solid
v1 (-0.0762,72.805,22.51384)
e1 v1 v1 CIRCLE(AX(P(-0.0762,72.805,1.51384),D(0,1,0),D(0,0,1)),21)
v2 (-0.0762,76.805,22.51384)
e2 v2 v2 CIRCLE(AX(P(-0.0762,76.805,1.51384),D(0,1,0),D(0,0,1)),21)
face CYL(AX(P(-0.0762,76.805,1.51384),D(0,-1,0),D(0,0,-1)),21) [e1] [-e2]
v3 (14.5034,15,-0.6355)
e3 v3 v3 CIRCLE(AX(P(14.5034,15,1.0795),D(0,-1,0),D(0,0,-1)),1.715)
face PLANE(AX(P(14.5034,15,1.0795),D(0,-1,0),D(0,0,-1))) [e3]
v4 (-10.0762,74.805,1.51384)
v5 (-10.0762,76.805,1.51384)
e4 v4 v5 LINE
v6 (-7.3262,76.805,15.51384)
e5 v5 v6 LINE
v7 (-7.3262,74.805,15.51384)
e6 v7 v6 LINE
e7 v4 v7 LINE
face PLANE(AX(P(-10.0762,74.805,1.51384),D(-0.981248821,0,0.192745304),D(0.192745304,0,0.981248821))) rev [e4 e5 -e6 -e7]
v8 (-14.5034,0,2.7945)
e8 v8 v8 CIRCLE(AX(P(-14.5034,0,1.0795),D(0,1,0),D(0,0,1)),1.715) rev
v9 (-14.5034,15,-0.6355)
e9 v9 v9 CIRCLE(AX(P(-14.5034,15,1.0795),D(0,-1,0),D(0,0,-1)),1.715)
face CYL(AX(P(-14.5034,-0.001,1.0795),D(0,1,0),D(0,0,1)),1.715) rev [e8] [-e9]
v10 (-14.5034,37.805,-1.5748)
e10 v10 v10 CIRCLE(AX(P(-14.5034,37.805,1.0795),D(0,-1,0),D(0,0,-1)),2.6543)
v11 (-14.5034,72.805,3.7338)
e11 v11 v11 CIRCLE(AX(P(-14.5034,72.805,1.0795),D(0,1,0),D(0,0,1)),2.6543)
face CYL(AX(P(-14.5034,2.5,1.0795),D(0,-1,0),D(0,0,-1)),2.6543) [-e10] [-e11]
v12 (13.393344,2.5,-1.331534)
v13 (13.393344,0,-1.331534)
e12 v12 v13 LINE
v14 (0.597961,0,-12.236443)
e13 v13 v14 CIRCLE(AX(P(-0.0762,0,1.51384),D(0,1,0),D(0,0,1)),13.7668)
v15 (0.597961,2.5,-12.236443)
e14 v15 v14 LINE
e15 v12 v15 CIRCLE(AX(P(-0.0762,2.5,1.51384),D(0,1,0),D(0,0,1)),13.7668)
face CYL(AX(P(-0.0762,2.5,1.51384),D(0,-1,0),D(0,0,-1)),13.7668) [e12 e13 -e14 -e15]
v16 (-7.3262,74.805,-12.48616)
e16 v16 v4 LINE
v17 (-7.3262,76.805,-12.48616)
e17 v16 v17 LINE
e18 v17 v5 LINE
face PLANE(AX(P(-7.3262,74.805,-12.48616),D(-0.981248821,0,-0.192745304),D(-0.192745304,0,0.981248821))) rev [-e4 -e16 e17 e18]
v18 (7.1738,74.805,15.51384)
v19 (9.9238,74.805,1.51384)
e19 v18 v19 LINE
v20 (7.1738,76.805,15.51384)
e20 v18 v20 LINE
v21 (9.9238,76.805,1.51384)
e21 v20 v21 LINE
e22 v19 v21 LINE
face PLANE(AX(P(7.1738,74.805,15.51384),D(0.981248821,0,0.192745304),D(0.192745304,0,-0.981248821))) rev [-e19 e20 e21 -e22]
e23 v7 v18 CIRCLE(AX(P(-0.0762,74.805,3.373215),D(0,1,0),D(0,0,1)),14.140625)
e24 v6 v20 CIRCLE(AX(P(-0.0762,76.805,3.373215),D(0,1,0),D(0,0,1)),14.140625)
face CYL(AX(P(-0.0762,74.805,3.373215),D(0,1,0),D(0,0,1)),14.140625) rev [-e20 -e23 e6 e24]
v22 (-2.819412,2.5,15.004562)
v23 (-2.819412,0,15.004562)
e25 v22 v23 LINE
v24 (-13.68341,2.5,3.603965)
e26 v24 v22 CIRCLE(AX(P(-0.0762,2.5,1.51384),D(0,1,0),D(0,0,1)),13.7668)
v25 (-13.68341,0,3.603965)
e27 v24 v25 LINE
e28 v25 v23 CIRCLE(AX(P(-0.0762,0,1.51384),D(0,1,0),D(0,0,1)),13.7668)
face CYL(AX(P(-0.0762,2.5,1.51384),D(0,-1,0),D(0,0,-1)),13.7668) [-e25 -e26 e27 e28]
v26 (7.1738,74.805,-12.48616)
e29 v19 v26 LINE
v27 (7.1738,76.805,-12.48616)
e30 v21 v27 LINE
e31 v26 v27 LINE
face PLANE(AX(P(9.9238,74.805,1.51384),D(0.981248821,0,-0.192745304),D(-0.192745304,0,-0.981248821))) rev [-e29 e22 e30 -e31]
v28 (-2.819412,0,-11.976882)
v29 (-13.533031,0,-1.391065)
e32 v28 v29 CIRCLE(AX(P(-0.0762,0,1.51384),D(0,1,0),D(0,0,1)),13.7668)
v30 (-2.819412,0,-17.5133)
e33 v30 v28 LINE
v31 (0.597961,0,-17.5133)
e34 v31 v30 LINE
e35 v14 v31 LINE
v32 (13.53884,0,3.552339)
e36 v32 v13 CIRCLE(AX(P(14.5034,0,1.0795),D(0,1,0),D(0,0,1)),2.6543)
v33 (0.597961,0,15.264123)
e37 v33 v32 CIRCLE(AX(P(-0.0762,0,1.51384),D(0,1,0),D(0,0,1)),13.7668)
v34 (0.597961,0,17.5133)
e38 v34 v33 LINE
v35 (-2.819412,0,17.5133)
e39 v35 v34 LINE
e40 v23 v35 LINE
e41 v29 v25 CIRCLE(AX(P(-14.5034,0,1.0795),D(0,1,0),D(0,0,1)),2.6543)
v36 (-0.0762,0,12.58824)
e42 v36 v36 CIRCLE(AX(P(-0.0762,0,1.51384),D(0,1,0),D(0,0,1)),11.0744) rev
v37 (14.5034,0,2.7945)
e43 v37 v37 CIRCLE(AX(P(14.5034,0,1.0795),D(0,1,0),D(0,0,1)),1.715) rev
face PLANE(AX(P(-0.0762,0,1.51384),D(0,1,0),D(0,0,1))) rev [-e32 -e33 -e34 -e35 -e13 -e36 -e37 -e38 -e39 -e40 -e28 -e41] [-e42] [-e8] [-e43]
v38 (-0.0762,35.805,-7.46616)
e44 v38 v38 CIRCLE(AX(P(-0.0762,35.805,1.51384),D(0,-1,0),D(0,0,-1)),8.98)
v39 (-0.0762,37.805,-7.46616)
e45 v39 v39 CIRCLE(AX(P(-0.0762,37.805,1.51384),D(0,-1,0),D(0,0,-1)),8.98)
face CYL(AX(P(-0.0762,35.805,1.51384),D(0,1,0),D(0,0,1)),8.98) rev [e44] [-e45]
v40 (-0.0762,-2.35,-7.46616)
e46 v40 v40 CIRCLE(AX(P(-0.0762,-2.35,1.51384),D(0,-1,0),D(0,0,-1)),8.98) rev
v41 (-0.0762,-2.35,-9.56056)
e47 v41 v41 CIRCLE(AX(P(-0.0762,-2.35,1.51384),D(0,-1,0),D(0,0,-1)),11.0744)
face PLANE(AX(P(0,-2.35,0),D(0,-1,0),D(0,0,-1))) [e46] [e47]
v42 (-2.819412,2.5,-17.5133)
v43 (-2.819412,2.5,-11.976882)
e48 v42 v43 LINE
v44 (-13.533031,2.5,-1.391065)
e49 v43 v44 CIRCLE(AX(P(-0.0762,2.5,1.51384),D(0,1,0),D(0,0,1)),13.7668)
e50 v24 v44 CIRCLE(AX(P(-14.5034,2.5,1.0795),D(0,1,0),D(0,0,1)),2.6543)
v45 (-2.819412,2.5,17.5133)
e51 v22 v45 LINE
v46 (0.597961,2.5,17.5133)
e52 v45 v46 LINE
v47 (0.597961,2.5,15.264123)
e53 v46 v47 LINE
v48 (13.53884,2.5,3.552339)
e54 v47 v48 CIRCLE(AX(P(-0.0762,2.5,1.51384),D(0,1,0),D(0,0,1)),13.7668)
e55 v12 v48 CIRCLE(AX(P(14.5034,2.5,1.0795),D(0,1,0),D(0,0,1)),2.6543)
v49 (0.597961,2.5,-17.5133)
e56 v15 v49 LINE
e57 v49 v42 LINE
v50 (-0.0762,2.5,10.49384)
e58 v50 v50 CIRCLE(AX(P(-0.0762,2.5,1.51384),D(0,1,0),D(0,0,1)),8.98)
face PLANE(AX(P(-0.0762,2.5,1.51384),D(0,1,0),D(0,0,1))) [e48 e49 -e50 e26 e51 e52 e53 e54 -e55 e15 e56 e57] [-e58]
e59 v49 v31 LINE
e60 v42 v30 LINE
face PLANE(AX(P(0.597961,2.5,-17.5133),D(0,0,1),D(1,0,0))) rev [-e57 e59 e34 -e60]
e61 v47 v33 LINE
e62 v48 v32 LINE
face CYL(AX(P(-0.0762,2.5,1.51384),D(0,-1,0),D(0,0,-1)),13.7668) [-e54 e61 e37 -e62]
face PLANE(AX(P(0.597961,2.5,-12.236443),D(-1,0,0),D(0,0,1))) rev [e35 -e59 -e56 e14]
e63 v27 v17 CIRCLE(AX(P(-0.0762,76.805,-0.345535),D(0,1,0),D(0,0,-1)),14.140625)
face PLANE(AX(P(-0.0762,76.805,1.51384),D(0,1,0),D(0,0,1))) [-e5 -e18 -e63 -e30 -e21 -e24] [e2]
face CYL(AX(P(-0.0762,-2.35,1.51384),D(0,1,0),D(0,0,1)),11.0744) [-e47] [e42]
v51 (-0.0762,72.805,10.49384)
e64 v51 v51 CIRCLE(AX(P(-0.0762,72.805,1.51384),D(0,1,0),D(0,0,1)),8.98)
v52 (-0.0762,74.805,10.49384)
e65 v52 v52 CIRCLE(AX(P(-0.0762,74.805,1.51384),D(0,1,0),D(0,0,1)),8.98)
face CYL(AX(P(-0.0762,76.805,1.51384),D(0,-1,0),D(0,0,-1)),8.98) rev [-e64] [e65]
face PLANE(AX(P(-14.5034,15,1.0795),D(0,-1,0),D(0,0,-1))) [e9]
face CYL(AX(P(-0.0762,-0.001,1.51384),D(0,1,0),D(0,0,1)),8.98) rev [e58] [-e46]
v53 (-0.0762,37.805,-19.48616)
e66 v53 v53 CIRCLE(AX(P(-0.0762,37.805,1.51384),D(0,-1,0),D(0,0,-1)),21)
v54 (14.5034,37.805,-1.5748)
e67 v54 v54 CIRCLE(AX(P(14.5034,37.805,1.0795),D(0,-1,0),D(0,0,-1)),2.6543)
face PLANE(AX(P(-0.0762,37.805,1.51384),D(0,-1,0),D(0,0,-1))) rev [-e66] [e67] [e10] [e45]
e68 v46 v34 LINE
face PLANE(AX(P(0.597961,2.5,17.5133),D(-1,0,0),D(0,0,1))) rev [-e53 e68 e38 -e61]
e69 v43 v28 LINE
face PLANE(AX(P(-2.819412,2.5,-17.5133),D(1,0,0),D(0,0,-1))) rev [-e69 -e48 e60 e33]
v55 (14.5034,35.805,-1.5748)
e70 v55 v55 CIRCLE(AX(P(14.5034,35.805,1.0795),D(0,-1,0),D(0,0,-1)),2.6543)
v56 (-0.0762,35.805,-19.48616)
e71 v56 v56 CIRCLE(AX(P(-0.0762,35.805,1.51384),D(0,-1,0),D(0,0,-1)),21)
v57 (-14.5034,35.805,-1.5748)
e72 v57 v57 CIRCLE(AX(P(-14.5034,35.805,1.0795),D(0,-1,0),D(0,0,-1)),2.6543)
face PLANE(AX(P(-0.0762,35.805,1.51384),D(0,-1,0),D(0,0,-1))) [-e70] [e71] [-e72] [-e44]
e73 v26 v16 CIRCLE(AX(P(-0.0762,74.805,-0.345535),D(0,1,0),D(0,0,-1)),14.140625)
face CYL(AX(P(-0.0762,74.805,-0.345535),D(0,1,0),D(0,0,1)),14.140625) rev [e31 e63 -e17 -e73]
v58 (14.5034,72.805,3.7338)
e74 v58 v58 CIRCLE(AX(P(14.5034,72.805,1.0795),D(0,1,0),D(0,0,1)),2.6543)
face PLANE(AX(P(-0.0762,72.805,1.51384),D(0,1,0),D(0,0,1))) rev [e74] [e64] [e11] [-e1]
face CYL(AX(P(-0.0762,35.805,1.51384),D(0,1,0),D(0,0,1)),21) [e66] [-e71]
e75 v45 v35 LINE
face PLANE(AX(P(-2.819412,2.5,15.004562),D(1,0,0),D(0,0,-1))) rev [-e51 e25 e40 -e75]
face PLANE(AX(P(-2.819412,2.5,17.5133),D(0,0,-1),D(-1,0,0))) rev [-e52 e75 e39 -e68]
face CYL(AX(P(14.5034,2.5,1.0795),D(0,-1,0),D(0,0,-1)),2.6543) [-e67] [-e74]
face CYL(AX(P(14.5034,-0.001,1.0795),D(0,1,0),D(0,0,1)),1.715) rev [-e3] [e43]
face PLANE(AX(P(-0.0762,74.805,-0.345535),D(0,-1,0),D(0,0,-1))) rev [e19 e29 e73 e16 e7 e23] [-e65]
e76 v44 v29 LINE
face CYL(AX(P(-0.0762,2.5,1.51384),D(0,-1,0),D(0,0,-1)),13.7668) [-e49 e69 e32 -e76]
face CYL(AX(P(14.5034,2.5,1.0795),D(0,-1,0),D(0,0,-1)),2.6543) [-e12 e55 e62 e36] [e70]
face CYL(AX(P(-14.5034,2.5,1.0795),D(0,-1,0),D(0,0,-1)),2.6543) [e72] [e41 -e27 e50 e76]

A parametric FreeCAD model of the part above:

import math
import FreeCAD as App
import Part
import Sketcher

doc = App.newDocument("Part")
body = doc.addObject("PartDesign::Body", "Body")

# Sketch on XZ plane
sketch1 = doc.addObject("Sketcher::SketchObject", "Sketch")
body.addObject(sketch1)
sketch1.AttachmentSupport = (doc.XZ_Plane, [""])
sketch1.MapMode = "FlatFace"
sketch1.addGeometry([
    Part.LineSegment(App.Vector(0.597961, -12.236443, 0), App.Vector(0.597961, -17.5133, 0)),  # 0
    Part.LineSegment(App.Vector(0.597961, -17.5133, 0), App.Vector(-2.819412, -17.5133, 0)),  # 1
    Part.LineSegment(App.Vector(-2.819412, -17.5133, 0), App.Vector(-2.819412, -11.976882, 0)),  # 2
    Part.ArcOfCircle(Part.Circle(App.Vector(-0.0762, 1.51384, 0), App.Vector(0, 0, 1), 13.7668), math.radians(-167.818568), math.radians(-101.493855)),  # 3
    Part.ArcOfCircle(Part.Circle(App.Vector(-14.5034, 1.0795, 0), App.Vector(0, 0, 1), 2.6543), math.radians(72.005302), math.radians(291.443507)),  # 4
    Part.ArcOfCircle(Part.Circle(App.Vector(-0.0762, 1.51384, 0), App.Vector(0, 0, 1), 13.7668), math.radians(101.493855), math.radians(171.267378)),  # 5
    Part.LineSegment(App.Vector(-2.819412, 15.004562, 0), App.Vector(-2.819412, 17.5133, 0)),  # 6
    Part.LineSegment(App.Vector(-2.819412, 17.5133, 0), App.Vector(0.597961, 17.5133, 0)),  # 7
    Part.LineSegment(App.Vector(0.597961, 17.5133, 0), App.Vector(0.597961, 15.264123, 0)),  # 8
    Part.ArcOfCircle(Part.Circle(App.Vector(-0.0762, 1.51384, 0), App.Vector(0, 0, 1), 13.7668), math.radians(8.515302), math.radians(87.1931)),  # 9
    Part.ArcOfCircle(Part.Circle(App.Vector(14.5034, 1.0795, 0), App.Vector(0, 0, 1), 2.6543), math.radians(-114.721646), math.radians(111.308865)),  # 10
    Part.ArcOfCircle(Part.Circle(App.Vector(-0.0762, 1.51384, 0), App.Vector(0, 0, 1), 13.7668), math.radians(-87.1931), math.radians(-11.928083)),  # 11
], False)
sketch1.addConstraint([
    Sketcher.Constraint("Coincident", 0, 2, 1, 1),
    Sketcher.Constraint("Coincident", 1, 2, 2, 1),
    Sketcher.Constraint("Coincident", 2, 2, 3, 2),
    Sketcher.Constraint("Coincident", 3, 1, 4, 2),
    Sketcher.Constraint("Coincident", 4, 1, 5, 2),
    Sketcher.Constraint("Coincident", 5, 1, 6, 1),
    Sketcher.Constraint("Coincident", 6, 2, 7, 1),
    Sketcher.Constraint("Coincident", 7, 2, 8, 1),
    Sketcher.Constraint("Coincident", 8, 2, 9, 2),
    Sketcher.Constraint("Coincident", 9, 1, 10, 2),
    Sketcher.Constraint("Coincident", 10, 1, 11, 2),
    Sketcher.Constraint("Coincident", 11, 1, 0, 1),
    Sketcher.Constraint("Vertical", 0),
    Sketcher.Constraint("Horizontal", 1),
    Sketcher.Constraint("Vertical", 2),
    Sketcher.Constraint("Vertical", 6),
    Sketcher.Constraint("Horizontal", 7),
    Sketcher.Constraint("Vertical", 8),
    Sketcher.Constraint("Coincident", 5, 3, 3, 3),
    Sketcher.Constraint("Coincident", 9, 3, 3, 3),
    Sketcher.Constraint("Coincident", 11, 3, 3, 3),
    Sketcher.Constraint("Equal", 3, 5),
    Sketcher.Constraint("Equal", 5, 9),
    Sketcher.Constraint("Equal", 4, 10),
    Sketcher.Constraint("Equal", 9, 11),
    Sketcher.Constraint("Symmetric", 4, 3, 10, 3, -2),
    Sketcher.Constraint("Symmetric", 1, 2, 6, 2, -1),
    Sketcher.Constraint("Vertical", 0, 2, 7, 2),
    Sketcher.Constraint("Radius", 3, 13.7668),
    Sketcher.Constraint("Radius", 4, 2.6543),
    Sketcher.Constraint("DistanceX", 4, 1, 5, 1, 10.863998),
    Sketcher.Constraint("DistanceY", 2, 1, 2, 2, 5.536418),
    Sketcher.Constraint("DistanceY", 6, 1, 6, 2, 2.508738),
    Sketcher.Constraint("DistanceX", 3, 3, -1, 1, 0.0762),
    Sketcher.Constraint("DistanceX", 4, 3, -1, 1, 14.5034),
    Sketcher.Constraint("DistanceY", -1, 1, 4, 3, 1.0795),
    Sketcher.Constraint("DistanceX", 1, 2, 1, 1, 3.417373),
])
pad1 = doc.addObject("PartDesign::Pad", "Pad")
body.addObject(pad1)
pad1.Profile = sketch1
pad1.Length = 2.5
pad1.Reversed = True

# Sketch on XZ plane
sketch2 = doc.addObject("Sketcher::SketchObject", "Sketch001")
body.addObject(sketch2)
sketch2.AttachmentSupport = (doc.XZ_Plane, [""])
sketch2.MapMode = "FlatFace"
sketch2.AttachmentOffset = App.Placement(App.Vector(0, 0, -2.5), App.Rotation())
sketch2.addGeometry(Part.Circle(App.Vector(-14.5034, 1.0795, 0), App.Vector(0, 0, 1), 1.715), False)
sketch2.addConstraint([
    Sketcher.Constraint("Diameter", 0, 3.43),
    Sketcher.Constraint("DistanceX", 0, 3, -1, 1, 14.5034),
    Sketcher.Constraint("DistanceY", -1, 1, 0, 3, 1.0795),
])
pocket1 = doc.addObject("PartDesign::Pocket", "Pocket")
body.addObject(pocket1)
pocket1.Profile = sketch2
pocket1.Type = "UpToFirst"
pocket1.Reversed = True

# Sketch on XZ plane
sketch3 = doc.addObject("Sketcher::SketchObject", "Sketch002")
body.addObject(sketch3)
sketch3.AttachmentSupport = (doc.XZ_Plane, [""])
sketch3.MapMode = "FlatFace"
sketch3.AttachmentOffset = App.Placement(App.Vector(0, 0, -2.5), App.Rotation())
sketch3.addGeometry(Part.Circle(App.Vector(14.5034, 1.0795, 0), App.Vector(0, 0, 1), 1.715), False)
sketch3.addConstraint([
    Sketcher.Constraint("Diameter", 0, 3.43),
    Sketcher.Constraint("DistanceX", -1, 1, 0, 3, 14.5034),
    Sketcher.Constraint("DistanceY", -1, 1, 0, 3, 1.0795),
])
pocket2 = doc.addObject("PartDesign::Pocket", "Pocket001")
body.addObject(pocket2)
pocket2.Profile = sketch3
pocket2.Type = "UpToFirst"
pocket2.Reversed = True

# Sketch on XZ plane
sketch4 = doc.addObject("Sketcher::SketchObject", "Sketch003")
body.addObject(sketch4)
sketch4.AttachmentSupport = (doc.XZ_Plane, [""])
sketch4.MapMode = "FlatFace"
sketch4.AttachmentOffset = App.Placement(App.Vector(0, 0, -2.5), App.Rotation())
sketch4.addGeometry(Part.Circle(App.Vector(-0.0762, 1.51384, 0), App.Vector(0, 0, 1), 8.98), False)
sketch4.addConstraint([
    Sketcher.Constraint("Diameter", 0, 17.96),
    Sketcher.Constraint("DistanceX", 0, 3, -1, 1, 0.0762),
    Sketcher.Constraint("DistanceY", -1, 1, 0, 3, 1.51384),
])
pocket3 = doc.addObject("PartDesign::Pocket", "Pocket002")
body.addObject(pocket3)
pocket3.Profile = sketch4
pocket3.Type = "UpToFirst"
pocket3.Reversed = True

# Sketch on XZ plane
sketch5 = doc.addObject("Sketcher::SketchObject", "Sketch004")
body.addObject(sketch5)
sketch5.AttachmentSupport = (doc.XZ_Plane, [""])
sketch5.MapMode = "FlatFace"
sketch5.AttachmentOffset = App.Placement(App.Vector(0, 0, -2.5), App.Rotation())
sketch5.addGeometry([
    Part.Circle(App.Vector(-14.5034, 1.0795, 0), App.Vector(0, 0, 1), 2.6543),
    Part.Circle(App.Vector(14.5034, 1.0795, 0), App.Vector(0, 0, 1), 2.6543),
], False)
sketch5.addConstraint([
    Sketcher.Constraint("Equal", 0, 1),
    Sketcher.Constraint("Symmetric", 0, 3, 1, 3, -2),
    Sketcher.Constraint("Diameter", 0, 5.3086),
    Sketcher.Constraint("DistanceX", 0, 3, -1, 1, 14.5034),
    Sketcher.Constraint("DistanceY", -1, 1, 0, 3, 1.0795),
])
pad2 = doc.addObject("PartDesign::Pad", "Pad001")
body.addObject(pad2)
pad2.Profile = sketch5
pad2.Length = 70.305
pad2.Reversed = True

# Sketch on XZ plane
sketch6 = doc.addObject("Sketcher::SketchObject", "Sketch005")
body.addObject(sketch6)
sketch6.AttachmentSupport = (doc.XZ_Plane, [""])
sketch6.MapMode = "FlatFace"
sketch6.AttachmentOffset = App.Placement(App.Vector(0, 0, -76.805), App.Rotation())
sketch6.addGeometry([
    Part.Circle(App.Vector(-0.0762, 1.51384, 0), App.Vector(0, 0, 1), 21),
    Part.Circle(App.Vector(-0.0762, 1.51384, 0), App.Vector(0, 0, 1), 8.98),
], False)
sketch6.addConstraint([
    Sketcher.Constraint("Coincident", 1, 3, 0, 3),
    Sketcher.Constraint("Diameter", 0, 42.0),
    Sketcher.Constraint("Diameter", 1, 17.96),
    Sketcher.Constraint("DistanceX", 0, 3, -1, 1, 0.0762),
    Sketcher.Constraint("DistanceY", -1, 1, 0, 3, 1.51384),
])
pad3 = doc.addObject("PartDesign::Pad", "Pad002")
body.addObject(pad3)
pad3.Profile = sketch6
pad3.Length = 4

# Sketch on XZ plane
sketch7 = doc.addObject("Sketcher::SketchObject", "Sketch006")
body.addObject(sketch7)
sketch7.AttachmentSupport = (doc.XZ_Plane, [""])
sketch7.MapMode = "FlatFace"
sketch7.AttachmentOffset = App.Placement(App.Vector(0, 0, -37.805), App.Rotation())
sketch7.addGeometry([
    Part.Circle(App.Vector(-0.0762, 1.51384, 0), App.Vector(0, 0, 1), 21),
    Part.Circle(App.Vector(-0.0762, 1.51384, 0), App.Vector(0, 0, 1), 8.98),
], False)
sketch7.addConstraint([
    Sketcher.Constraint("Coincident", 1, 3, 0, 3),
    Sketcher.Constraint("Diameter", 0, 42.0),
    Sketcher.Constraint("Diameter", 1, 17.96),
    Sketcher.Constraint("DistanceX", 0, 3, -1, 1, 0.0762),
    Sketcher.Constraint("DistanceY", -1, 1, 0, 3, 1.51384),
])
pad4 = doc.addObject("PartDesign::Pad", "Pad003")
body.addObject(pad4)
pad4.Profile = sketch7
pad4.Length = 2

# Sketch on XZ plane
sketch8 = doc.addObject("Sketcher::SketchObject", "Sketch007")
body.addObject(sketch8)
sketch8.AttachmentSupport = (doc.XZ_Plane, [""])
sketch8.MapMode = "FlatFace"
sketch8.AttachmentOffset = App.Placement(App.Vector(0, 0, -15), App.Rotation())
sketch8.addGeometry([
    Part.Circle(App.Vector(-14.5034, 1.0795, 0), App.Vector(0, 0, 1), 1.715),
    Part.Circle(App.Vector(14.5034, 1.0795, 0), App.Vector(0, 0, 1), 1.715),
], False)
sketch8.addConstraint([
    Sketcher.Constraint("Equal", 0, 1),
    Sketcher.Constraint("Symmetric", 0, 3, 1, 3, -2),
    Sketcher.Constraint("Diameter", 0, 3.43),
    Sketcher.Constraint("DistanceX", 0, 3, -1, 1, 14.5034),
    Sketcher.Constraint("DistanceY", -1, 1, 0, 3, 1.0795),
])
pocket4 = doc.addObject("PartDesign::Pocket", "Pocket003")
body.addObject(pocket4)
pocket4.Profile = sketch8
pocket4.Length = 15
pocket4.Reversed = True

# Sketch on XZ plane
sketch9 = doc.addObject("Sketcher::SketchObject", "Sketch008")
body.addObject(sketch9)
sketch9.AttachmentSupport = (doc.XZ_Plane, [""])
sketch9.MapMode = "FlatFace"
sketch9.AttachmentOffset = App.Placement(App.Vector(0, 0, -76.805), App.Rotation())
sketch9.addGeometry([
    Part.LineSegment(App.Vector(-10.0762, 1.51384, 0), App.Vector(-7.3262, 15.51384, 0)),  # 0
    Part.ArcOfCircle(Part.Circle(App.Vector(-0.0762, 3.373215, 0), App.Vector(0, 0, 1), 14.140625), math.radians(59.155677), math.radians(120.844323)),  # 1
    Part.LineSegment(App.Vector(7.1738, 15.51384, 0), App.Vector(9.9238, 1.51384, 0)),  # 2
    Part.LineSegment(App.Vector(9.9238, 1.51384, 0), App.Vector(7.1738, -12.48616, 0)),  # 3
    Part.ArcOfCircle(Part.Circle(App.Vector(-0.0762, -0.345535, 0), App.Vector(0, 0, 1), 14.140625), math.radians(-120.844323), math.radians(-59.155677)),  # 4
    Part.LineSegment(App.Vector(-7.3262, -12.48616, 0), App.Vector(-10.0762, 1.51384, 0)),  # 5
    Part.Circle(App.Vector(-0.0762, 1.51384, 0), App.Vector(0, 0, 1), 8.98),  # 6
], False)
sketch9.addConstraint([
    Sketcher.Constraint("Coincident", 0, 2, 1, 2),
    Sketcher.Constraint("Coincident", 1, 1, 2, 1),
    Sketcher.Constraint("Coincident", 2, 2, 3, 1),
    Sketcher.Constraint("Coincident", 3, 2, 4, 2),
    Sketcher.Constraint("Coincident", 4, 1, 5, 1),
    Sketcher.Constraint("Coincident", 5, 2, 0, 1),
    Sketcher.Constraint("Equal", 1, 4),
    Sketcher.Constraint("Parallel", 0, 3),
    Sketcher.Constraint("Parallel", 2, 5),
    Sketcher.Constraint("Horizontal", 0, 2, 1, 1),
    Sketcher.Constraint("Horizontal", 6, 3, 2, 2),
    Sketcher.Constraint("Horizontal", 3, 2, 4, 1),
    Sketcher.Constraint("Horizontal", 2, 2, 5, 2),
    Sketcher.Constraint("Vertical", 1, 3, 4, 3),
    Sketcher.Constraint("Vertical", 4, 3, 6, 3),
    Sketcher.Constraint("Vertical", 1, 1, 3, 2),
    Sketcher.Constraint("Diameter", 6, 17.96),
    Sketcher.Constraint("DistanceY", 6, 3, 0, 2, 14.0),
    Sketcher.Constraint("DistanceX", 6, 3, 2, 2, 10.0),
    Sketcher.Constraint("DistanceX", 0, 2, 1, 1, 14.5),
    Sketcher.Constraint("Radius", 1, 14.140625),
    Sketcher.Constraint("DistanceX", 1, 3, -1, 1, 0.0762),
    Sketcher.Constraint("DistanceY", -1, 1, 6, 3, 1.51384),
])
pocket5 = doc.addObject("PartDesign::Pocket", "Pocket004")
body.addObject(pocket5)
pocket5.Profile = sketch9
pocket5.Length = 2
pocket5.Reversed = True

# Sketch on XZ plane
sketch10 = doc.addObject("Sketcher::SketchObject", "Sketch009")
body.addObject(sketch10)
sketch10.AttachmentSupport = (doc.XZ_Plane, [""])
sketch10.MapMode = "FlatFace"
sketch10.addGeometry([
    Part.Circle(App.Vector(-0.0762, 1.51384, 0), App.Vector(0, 0, 1), 11.0744),
    Part.Circle(App.Vector(-0.0762, 1.51384, 0), App.Vector(0, 0, 1), 8.98),
], False)
sketch10.addConstraint([
    Sketcher.Constraint("Coincident", 1, 3, 0, 3),
    Sketcher.Constraint("Diameter", 1, 17.96),
    Sketcher.Constraint("Diameter", 0, 22.1488),
    Sketcher.Constraint("DistanceX", 0, 3, -1, 1, 0.0762),
    Sketcher.Constraint("DistanceY", -1, 1, 0, 3, 1.51384),
])
pad5 = doc.addObject("PartDesign::Pad", "Pad004")
body.addObject(pad5)
pad5.Profile = sketch10
pad5.Length = 2.35

doc.recompute()
